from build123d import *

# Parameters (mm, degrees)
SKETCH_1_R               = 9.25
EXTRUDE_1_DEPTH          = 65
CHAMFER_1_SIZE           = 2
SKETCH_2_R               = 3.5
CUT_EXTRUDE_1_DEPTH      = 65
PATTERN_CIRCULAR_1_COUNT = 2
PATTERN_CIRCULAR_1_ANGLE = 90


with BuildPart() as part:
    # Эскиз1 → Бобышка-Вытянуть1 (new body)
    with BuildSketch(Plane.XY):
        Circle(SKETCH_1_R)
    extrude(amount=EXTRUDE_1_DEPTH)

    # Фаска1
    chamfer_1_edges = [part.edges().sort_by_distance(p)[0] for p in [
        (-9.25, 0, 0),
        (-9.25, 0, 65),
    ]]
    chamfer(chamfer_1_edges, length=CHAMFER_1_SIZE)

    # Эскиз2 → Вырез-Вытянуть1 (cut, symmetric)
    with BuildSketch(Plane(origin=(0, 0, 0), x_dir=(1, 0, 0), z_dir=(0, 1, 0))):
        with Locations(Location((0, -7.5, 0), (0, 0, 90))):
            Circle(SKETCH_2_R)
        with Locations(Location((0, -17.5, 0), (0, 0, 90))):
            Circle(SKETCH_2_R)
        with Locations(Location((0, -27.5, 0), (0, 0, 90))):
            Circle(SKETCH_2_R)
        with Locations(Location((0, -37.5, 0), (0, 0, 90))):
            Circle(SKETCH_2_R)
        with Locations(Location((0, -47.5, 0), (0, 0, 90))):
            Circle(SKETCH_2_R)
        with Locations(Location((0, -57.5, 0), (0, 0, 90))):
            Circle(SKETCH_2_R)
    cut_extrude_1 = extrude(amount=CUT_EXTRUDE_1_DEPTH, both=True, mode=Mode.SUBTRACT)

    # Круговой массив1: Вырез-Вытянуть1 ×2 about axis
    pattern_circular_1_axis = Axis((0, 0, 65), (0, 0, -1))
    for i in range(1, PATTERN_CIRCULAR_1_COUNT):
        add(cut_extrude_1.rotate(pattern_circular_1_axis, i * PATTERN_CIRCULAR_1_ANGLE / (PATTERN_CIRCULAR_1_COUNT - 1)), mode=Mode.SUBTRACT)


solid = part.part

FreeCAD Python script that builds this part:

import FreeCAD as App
import Part
import Sketcher


def edges_at(feature, points):
    """Names of the edges that pass closest to the given points."""
    edges = feature.Shape.Edges
    near = lambda p: min(range(len(edges)), key=lambda i: edges[i].distToShape(Part.Vertex(*p))[0])
    return sorted({f"Edge{near(p) + 1}" for p in points})

doc = App.newDocument("Part")
body = doc.addObject("PartDesign::Body", "Body")

# Sketch on XY plane
sketch1 = body.newObject("Sketcher::SketchObject", "Sketch")
sketch1.AttachmentSupport = (doc.getObject("XY_Plane"), [""])
sketch1.MapMode = "FlatFace"
sketch1.addGeometry(Part.Circle(App.Vector(0, 0, 0), App.Vector(0, 0, 1), 9), False)
sketch1.addConstraint([
    Sketcher.Constraint("Coincident", 0, 3, -1, 1),
    Sketcher.Constraint("Diameter", 0, 18.5),
])
pad1 = body.newObject("PartDesign::Pad", "Pad")
pad1.Profile = sketch1
pad1.Length = 65
doc.recompute()

chamfer = body.newObject("PartDesign::Chamfer", "Chamfer")
chamfer.Base = (pad1, edges_at(pad1, [(-9.25, 0, 0), (-9.25, 0, 65)]))
chamfer.Size = 2

# Sketch on XZ plane
sketch2 = body.newObject("Sketcher::SketchObject", "Sketch001")
sketch2.AttachmentSupport = (doc.getObject("XZ_Plane"), [""])
sketch2.MapMode = "FlatFace"
sketch2.addGeometry([
    Part.Circle(App.Vector(0, 7.5, 0), App.Vector(0, 0, 1), 3.5),  # 0
    Part.Circle(App.Vector(0, 17.5, 0), App.Vector(0, 0, 1), 3.5),  # 1
    Part.Circle(App.Vector(0, 27.5, 0), App.Vector(0, 0, 1), 3.5),  # 2
    Part.Circle(App.Vector(0, 37.5, 0), App.Vector(0, 0, 1), 3.5),  # 3
    Part.Circle(App.Vector(0, 47.5, 0), App.Vector(0, 0, 1), 3.5),  # 4
    Part.Circle(App.Vector(0, 57.5, 0), App.Vector(0, 0, 1), 3.5),  # 5
], False)
sketch2.addConstraint([
    Sketcher.Constraint("Equal", 0, 1),
    Sketcher.Constraint("Equal", 1, 2),
    Sketcher.Constraint("Equal", 2, 3),
    Sketcher.Constraint("Equal", 3, 4),
    Sketcher.Constraint("Equal", 4, 5),
    Sketcher.Constraint("PointOnObject", 0, 3, -2),
    Sketcher.Constraint("PointOnObject", 1, 3, -2),
    Sketcher.Constraint("PointOnObject", 2, 3, -2),
    Sketcher.Constraint("PointOnObject", 3, 3, -2),
    Sketcher.Constraint("PointOnObject", 4, 3, -2),
    Sketcher.Constraint("PointOnObject", 5, 3, -2),
    Sketcher.Constraint("Diameter", 0, 7.0),
    Sketcher.Constraint("DistanceY", 0, 3, 1, 3, 10.0),
    Sketcher.Constraint("DistanceY", 1, 3, 2, 3, 10.0),
    Sketcher.Constraint("DistanceY", 2, 3, 3, 3, 10.0),
    Sketcher.Constraint("DistanceY", 3, 3, 4, 3, 10.0),
    Sketcher.Constraint("DistanceY", 4, 3, 5, 3, 10.0),
    Sketcher.Constraint("DistanceY", -1, 1, 0, 3, 7.5),
])
pocket1 = body.newObject("PartDesign::Pocket", "Pocket")
pocket1.Profile = sketch2
pocket1.Length = 130
pocket1.Midplane = True
doc.recompute()

polarpattern = body.newObject("PartDesign::PolarPattern", "PolarPattern")
polarpattern.Originals = [pocket1]
polarpattern.Axis = (doc.getObject("Z_Axis"), [""])
polarpattern.Angle = 90
polarpattern.Occurrences = 2
polarpattern.Reversed = True
body.Tip = polarpattern

doc.recompute()
